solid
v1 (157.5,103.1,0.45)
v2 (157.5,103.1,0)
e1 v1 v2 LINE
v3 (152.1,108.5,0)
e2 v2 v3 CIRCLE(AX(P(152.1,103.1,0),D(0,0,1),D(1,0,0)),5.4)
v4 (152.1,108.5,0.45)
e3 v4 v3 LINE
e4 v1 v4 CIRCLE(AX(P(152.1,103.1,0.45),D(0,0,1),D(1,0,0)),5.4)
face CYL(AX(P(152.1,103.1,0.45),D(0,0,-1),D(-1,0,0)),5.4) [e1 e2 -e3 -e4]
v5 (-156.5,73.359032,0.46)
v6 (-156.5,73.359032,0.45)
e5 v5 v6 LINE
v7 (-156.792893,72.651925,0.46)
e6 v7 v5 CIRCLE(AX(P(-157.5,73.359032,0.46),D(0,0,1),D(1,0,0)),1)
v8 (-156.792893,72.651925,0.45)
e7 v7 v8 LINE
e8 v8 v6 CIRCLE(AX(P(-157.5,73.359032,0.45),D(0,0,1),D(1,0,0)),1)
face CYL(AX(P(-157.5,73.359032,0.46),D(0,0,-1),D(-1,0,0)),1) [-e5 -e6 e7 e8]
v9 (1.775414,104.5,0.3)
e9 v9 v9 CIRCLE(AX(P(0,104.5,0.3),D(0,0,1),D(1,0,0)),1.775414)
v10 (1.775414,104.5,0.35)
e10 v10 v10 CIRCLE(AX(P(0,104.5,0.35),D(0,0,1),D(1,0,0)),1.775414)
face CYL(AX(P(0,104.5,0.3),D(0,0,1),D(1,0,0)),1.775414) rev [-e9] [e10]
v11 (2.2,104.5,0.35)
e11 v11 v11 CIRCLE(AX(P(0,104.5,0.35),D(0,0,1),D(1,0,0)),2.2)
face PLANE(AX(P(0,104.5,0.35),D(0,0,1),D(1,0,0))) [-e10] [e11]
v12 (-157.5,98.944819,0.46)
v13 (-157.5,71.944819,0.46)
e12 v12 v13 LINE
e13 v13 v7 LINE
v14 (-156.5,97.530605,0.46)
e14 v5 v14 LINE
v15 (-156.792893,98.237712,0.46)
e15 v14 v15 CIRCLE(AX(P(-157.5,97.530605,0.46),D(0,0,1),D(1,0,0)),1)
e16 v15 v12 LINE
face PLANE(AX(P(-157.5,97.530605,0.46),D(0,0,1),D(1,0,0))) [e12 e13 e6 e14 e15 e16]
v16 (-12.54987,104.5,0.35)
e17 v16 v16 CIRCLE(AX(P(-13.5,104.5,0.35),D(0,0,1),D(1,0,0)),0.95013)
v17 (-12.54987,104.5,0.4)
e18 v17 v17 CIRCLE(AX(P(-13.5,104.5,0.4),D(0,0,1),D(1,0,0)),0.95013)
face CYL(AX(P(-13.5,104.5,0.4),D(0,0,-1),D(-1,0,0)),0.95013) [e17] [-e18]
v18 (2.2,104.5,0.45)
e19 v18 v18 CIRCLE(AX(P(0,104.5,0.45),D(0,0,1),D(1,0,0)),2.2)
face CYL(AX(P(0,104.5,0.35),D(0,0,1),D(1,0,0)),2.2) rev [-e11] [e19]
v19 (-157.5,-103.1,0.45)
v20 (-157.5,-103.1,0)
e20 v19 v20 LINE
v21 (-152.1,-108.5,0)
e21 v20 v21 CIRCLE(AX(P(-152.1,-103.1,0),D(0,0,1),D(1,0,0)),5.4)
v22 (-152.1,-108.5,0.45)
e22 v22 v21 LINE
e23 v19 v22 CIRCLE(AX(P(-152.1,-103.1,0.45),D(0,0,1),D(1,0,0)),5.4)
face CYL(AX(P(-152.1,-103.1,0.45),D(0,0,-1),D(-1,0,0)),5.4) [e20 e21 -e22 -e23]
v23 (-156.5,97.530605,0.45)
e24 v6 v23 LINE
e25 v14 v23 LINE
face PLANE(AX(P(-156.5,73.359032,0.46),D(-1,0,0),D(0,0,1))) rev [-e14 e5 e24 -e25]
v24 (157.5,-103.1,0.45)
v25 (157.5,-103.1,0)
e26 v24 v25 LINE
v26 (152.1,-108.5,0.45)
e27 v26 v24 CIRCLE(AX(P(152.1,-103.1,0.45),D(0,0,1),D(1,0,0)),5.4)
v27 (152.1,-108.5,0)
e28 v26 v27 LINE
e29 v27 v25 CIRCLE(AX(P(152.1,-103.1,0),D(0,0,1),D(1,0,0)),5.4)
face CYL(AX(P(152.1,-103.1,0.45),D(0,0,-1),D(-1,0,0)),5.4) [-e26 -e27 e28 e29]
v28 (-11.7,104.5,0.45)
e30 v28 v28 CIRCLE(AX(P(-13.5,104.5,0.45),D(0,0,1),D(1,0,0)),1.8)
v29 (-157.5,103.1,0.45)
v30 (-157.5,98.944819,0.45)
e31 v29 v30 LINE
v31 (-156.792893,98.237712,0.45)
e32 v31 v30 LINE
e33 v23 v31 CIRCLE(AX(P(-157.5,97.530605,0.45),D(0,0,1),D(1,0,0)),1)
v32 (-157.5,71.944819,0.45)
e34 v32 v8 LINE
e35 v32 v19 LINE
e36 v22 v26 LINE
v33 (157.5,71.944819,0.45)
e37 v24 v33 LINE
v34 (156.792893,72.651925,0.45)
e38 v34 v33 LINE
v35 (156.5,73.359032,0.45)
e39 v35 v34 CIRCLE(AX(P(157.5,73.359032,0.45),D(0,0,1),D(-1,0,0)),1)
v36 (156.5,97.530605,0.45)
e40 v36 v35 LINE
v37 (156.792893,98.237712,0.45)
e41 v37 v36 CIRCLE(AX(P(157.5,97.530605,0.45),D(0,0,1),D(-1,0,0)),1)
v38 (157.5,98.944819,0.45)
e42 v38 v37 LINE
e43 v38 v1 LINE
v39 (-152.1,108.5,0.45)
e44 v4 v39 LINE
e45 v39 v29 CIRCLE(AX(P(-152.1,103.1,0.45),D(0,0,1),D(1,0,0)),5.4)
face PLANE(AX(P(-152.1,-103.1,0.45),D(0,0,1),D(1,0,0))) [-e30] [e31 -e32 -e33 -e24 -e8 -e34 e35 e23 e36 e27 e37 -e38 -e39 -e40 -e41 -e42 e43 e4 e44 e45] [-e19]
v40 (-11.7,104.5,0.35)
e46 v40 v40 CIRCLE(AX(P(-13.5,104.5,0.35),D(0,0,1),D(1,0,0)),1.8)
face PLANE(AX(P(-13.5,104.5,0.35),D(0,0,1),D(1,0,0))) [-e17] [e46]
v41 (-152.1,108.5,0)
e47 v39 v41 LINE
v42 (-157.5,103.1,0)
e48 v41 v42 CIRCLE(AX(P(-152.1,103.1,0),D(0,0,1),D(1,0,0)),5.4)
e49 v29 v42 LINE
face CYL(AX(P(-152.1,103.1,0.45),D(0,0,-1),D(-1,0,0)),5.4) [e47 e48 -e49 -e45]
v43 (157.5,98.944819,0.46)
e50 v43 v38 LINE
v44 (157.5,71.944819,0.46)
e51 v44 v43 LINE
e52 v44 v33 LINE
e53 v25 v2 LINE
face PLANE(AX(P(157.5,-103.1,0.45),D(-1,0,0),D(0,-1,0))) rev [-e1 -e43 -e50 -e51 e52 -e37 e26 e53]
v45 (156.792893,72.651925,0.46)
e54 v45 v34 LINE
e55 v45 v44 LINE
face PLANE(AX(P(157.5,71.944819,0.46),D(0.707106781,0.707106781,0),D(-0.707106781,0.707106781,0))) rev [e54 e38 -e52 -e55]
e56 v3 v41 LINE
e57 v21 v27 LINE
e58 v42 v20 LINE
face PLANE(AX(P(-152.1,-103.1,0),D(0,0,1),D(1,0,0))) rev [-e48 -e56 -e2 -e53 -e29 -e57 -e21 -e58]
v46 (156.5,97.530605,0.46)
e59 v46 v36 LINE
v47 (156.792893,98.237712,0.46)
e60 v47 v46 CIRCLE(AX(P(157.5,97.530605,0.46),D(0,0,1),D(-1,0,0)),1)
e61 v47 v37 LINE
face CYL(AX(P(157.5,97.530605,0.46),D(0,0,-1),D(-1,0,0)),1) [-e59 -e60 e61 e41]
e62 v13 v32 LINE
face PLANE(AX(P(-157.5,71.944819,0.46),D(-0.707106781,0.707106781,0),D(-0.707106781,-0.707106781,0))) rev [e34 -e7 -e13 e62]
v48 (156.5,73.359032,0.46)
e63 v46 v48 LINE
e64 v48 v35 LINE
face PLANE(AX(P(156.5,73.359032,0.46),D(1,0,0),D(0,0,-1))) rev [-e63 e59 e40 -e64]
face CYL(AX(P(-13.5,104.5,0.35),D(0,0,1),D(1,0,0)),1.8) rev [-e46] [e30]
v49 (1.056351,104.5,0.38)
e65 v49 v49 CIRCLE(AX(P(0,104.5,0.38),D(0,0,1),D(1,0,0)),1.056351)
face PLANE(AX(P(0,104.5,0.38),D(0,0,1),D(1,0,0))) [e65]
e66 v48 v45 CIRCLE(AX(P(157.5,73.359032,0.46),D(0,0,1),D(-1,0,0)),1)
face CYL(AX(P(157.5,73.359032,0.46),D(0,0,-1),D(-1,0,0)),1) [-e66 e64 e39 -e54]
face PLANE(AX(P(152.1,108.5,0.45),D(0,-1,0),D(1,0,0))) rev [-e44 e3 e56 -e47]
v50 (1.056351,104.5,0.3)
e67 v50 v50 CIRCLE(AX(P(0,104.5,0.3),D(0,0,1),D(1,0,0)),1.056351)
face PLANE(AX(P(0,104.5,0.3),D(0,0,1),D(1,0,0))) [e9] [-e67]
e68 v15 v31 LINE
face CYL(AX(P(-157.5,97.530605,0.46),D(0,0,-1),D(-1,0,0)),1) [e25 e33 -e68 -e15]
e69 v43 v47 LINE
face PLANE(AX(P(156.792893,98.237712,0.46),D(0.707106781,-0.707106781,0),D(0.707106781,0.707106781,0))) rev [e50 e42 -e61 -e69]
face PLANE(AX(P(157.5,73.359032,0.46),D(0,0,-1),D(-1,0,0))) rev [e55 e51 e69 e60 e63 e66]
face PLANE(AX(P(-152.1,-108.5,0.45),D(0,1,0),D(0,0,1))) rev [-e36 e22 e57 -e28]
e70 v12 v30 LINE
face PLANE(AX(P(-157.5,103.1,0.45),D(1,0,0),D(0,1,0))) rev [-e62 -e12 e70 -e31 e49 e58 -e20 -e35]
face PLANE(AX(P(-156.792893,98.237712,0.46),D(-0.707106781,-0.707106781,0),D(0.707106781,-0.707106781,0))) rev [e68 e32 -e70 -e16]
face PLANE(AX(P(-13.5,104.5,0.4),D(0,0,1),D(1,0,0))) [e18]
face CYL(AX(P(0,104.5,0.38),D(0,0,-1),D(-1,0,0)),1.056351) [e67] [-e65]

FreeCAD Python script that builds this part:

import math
import FreeCAD as App
import Part
import Sketcher
Q = App.Units.Quantity

doc = App.newDocument("Part")
body = doc.addObject("PartDesign::Body", "Body")

sketch1 = body.newObject("Sketcher::SketchObject", "Sketch")
sketch1.AttachmentSupport = (doc.getObject("XY_Plane"), [""])
sketch1.MapMode = "FlatFace"
sketch1.addGeometry([
    Part.LineSegment(App.Vector(-152, -108, 0), App.Vector(152, -108, 0)),
    Part.ArcOfCircle(Part.Circle(App.Vector(152, -103, 0), App.Vector(0, 0, 1), 5), math.radians(-90), math.radians(0)),
    Part.LineSegment(App.Vector(158, -103, 0), App.Vector(158, 103, 0)),
    Part.ArcOfCircle(Part.Circle(App.Vector(152, 103, 0), App.Vector(0, 0, 1), 5), math.radians(0), math.radians(90)),
    Part.LineSegment(App.Vector(152, 108, 0), App.Vector(-152, 108, 0)),
    Part.ArcOfCircle(Part.Circle(App.Vector(-152, 103, 0), App.Vector(0, 0, 1), 5), math.radians(90), math.radians(180)),
    Part.LineSegment(App.Vector(-158, 103, 0), App.Vector(-158, -103, 0)),
    Part.ArcOfCircle(Part.Circle(App.Vector(-152, -103, 0), App.Vector(0, 0, 1), 5), math.radians(-180), math.radians(-90)),
], False)
sketch1.addConstraint([
    Sketcher.Constraint("Tangent", 0, 2, 1, 1),
    Sketcher.Constraint("Tangent", 1, 2, 2, 1),
    Sketcher.Constraint("Tangent", 2, 2, 3, 1),
    Sketcher.Constraint("Tangent", 3, 2, 4, 1),
    Sketcher.Constraint("Tangent", 4, 2, 5, 1),
    Sketcher.Constraint("Tangent", 5, 2, 6, 1),
    Sketcher.Constraint("Tangent", 6, 2, 7, 1),
    Sketcher.Constraint("Tangent", 7, 2, 0, 1),
    Sketcher.Constraint("Horizontal", 0),
    Sketcher.Constraint("Vertical", 2),
    Sketcher.Constraint("Horizontal", 4),
    Sketcher.Constraint("Vertical", 6),
    Sketcher.Constraint("Equal", 1, 3),
    Sketcher.Constraint("Equal", 3, 5),
    Sketcher.Constraint("Equal", 5, 7),
    Sketcher.Constraint("Symmetric", 1, 3, 5, 3, -1, 1),
    Sketcher.Constraint("Radius", 1, Q("5.4 mm")),
    Sketcher.Constraint("DistanceX", 0, 1, 0, 2, Q("304.2 mm")),
    Sketcher.Constraint("DistanceY", 2, 1, 2, 2, Q("206.2 mm")),
])
pad1 = body.newObject("PartDesign::Pad", "Pad")
pad1.Profile = sketch1
pad1.Length = 0.45

sketch2 = body.newObject("Sketcher::SketchObject", "Sketch001")
sketch2.AttachmentSupport = (doc.getObject("XY_Plane"), [""])
sketch2.MapMode = "FlatFace"
sketch2.AttachmentOffset = App.Placement(App.Vector(0, 0, 0.45), App.Rotation())
sketch2.addGeometry([
    Part.Circle(App.Vector(0, 104.5, 0), App.Vector(0, 0, 1), 2.2),
    Part.Circle(App.Vector(-13.5, 104.5, 0), App.Vector(0, 0, 1), 1.8),
], False)
sketch2.addConstraint([
    Sketcher.Constraint("PointOnObject", 0, 3, -2),
    Sketcher.Constraint("Horizontal", 0, 3, 1, 3),
    Sketcher.Constraint("Diameter", 0, Q("4.4 mm")),
    Sketcher.Constraint("Diameter", 1, Q("3.6 mm")),
    Sketcher.Constraint("DistanceY", -1, 1, 0, 3, Q("104.5 mm")),
    Sketcher.Constraint("DistanceX", 1, 3, -1, 1, Q("13.5 mm")),
])
pocket1 = body.newObject("PartDesign::Pocket", "Pocket")
pocket1.Profile = sketch2
pocket1.Length = 0.1

sketch3 = body.newObject("Sketcher::SketchObject", "Sketch002")
sketch3.AttachmentSupport = (doc.getObject("XY_Plane"), [""])
sketch3.MapMode = "FlatFace"
sketch3.AttachmentOffset = App.Placement(App.Vector(0, 0, 0.35), App.Rotation())
sketch3.addGeometry(Part.Circle(App.Vector(-13.5, 104.5, 0), App.Vector(0, 0, 1), 1), False)
sketch3.addConstraint([
    Sketcher.Constraint("DistanceX", 0, 3, -1, 1, Q("13.5 mm")),
    Sketcher.Constraint("DistanceY", -1, 1, 0, 3, Q("104.5 mm")),
    Sketcher.Constraint("Diameter", 0, Q("1.900261 mm")),
])
pad2 = body.newObject("PartDesign::Pad", "Pad001")
pad2.Profile = sketch3
pad2.Length = 0.05

sketch4 = body.newObject("Sketcher::SketchObject", "Sketch003")
sketch4.AttachmentSupport = (doc.getObject("XY_Plane"), [""])
sketch4.MapMode = "FlatFace"
sketch4.AttachmentOffset = App.Placement(App.Vector(0, 0, 0.35), App.Rotation())
sketch4.addGeometry(Part.Circle(App.Vector(0, 104.5, 0), App.Vector(0, 0, 1), 1.8), False)
sketch4.addConstraint([
    Sketcher.Constraint("PointOnObject", 0, 3, -2),
    Sketcher.Constraint("DistanceY", -1, 1, 0, 3, Q("104.5 mm")),
    Sketcher.Constraint("Diameter", 0, Q("3.550828 mm")),
])
pocket2 = body.newObject("PartDesign::Pocket", "Pocket001")
pocket2.Profile = sketch4
pocket2.Length = 0.05

sketch5 = body.newObject("Sketcher::SketchObject", "Sketch004")
sketch5.AttachmentSupport = (doc.getObject("XY_Plane"), [""])
sketch5.MapMode = "FlatFace"
sketch5.AttachmentOffset = App.Placement(App.Vector(0, 0, 0.3), App.Rotation())
sketch5.addGeometry(Part.Circle(App.Vector(0, 104.5, 0), App.Vector(0, 0, 1), 1.1), False)
sketch5.addConstraint([
    Sketcher.Constraint("PointOnObject", 0, 3, -2),
    Sketcher.Constraint("Diameter", 0, Q("2.112701 mm")),
    Sketcher.Constraint("DistanceY", -1, 1, 0, 3, Q("104.5 mm")),
])
pad3 = body.newObject("PartDesign::Pad", "Pad002")
pad3.Profile = sketch5
pad3.Length = 0.08

sketch6 = body.newObject("Sketcher::SketchObject", "Sketch005")
sketch6.AttachmentSupport = (doc.getObject("XY_Plane"), [""])
sketch6.MapMode = "FlatFace"
sketch6.AttachmentOffset = App.Placement(App.Vector(0, 0, 0.45), App.Rotation())
sketch6.addGeometry([
    Part.LineSegment(App.Vector(156.8, 72.7, 0), App.Vector(157.5, 71.9, 0)),
    Part.LineSegment(App.Vector(157.5, 71.9, 0), App.Vector(157.5, 98.9, 0)),
    Part.LineSegment(App.Vector(157.5, 98.9, 0), App.Vector(156.8, 98.2, 0)),
    Part.ArcOfCircle(Part.Circle(App.Vector(157.5, 97.5, 0), App.Vector(0, 0, 1), 1), math.radians(135), math.radians(180)),
    Part.LineSegment(App.Vector(156.5, 97.5, 0), App.Vector(156.5, 73.4, 0)),
    Part.ArcOfCircle(Part.Circle(App.Vector(157.5, 73.4, 0), App.Vector(0, 0, 1), 1), math.radians(180), math.radians(225)),
    Part.LineSegment(App.Vector(-157.5, 98.9, 0), App.Vector(-157.5, 71.9, 0)),
    Part.LineSegment(App.Vector(-157.5, 71.9, 0), App.Vector(-156.8, 72.7, 0)),
    Part.ArcOfCircle(Part.Circle(App.Vector(-157.5, 73.4, 0), App.Vector(0, 0, 1), 1), math.radians(-45), math.radians(0)),
    Part.LineSegment(App.Vector(-156.5, 73.4, 0), App.Vector(-156.5, 97.5, 0)),
    Part.ArcOfCircle(Part.Circle(App.Vector(-157.5, 97.5, 0), App.Vector(0, 0, 1), 1), math.radians(0), math.radians(45)),
    Part.LineSegment(App.Vector(-156.8, 98.2, 0), App.Vector(-157.5, 98.9, 0)),
], False)
sketch6.addConstraint([
    Sketcher.Constraint("Coincident", 0, 2, 1, 1),
    Sketcher.Constraint("Coincident", 1, 2, 2, 1),
    Sketcher.Constraint("Tangent", 2, 2, 3, 1),
    Sketcher.Constraint("Tangent", 3, 2, 4, 1),
    Sketcher.Constraint("Tangent", 4, 2, 5, 1),
    Sketcher.Constraint("Tangent", 5, 2, 0, 1),
    Sketcher.Constraint("Coincident", 6, 2, 7, 1),
    Sketcher.Constraint("Tangent", 7, 2, 8, 1),
    Sketcher.Constraint("Tangent", 8, 2, 9, 1),
    Sketcher.Constraint("Tangent", 9, 2, 10, 1),
    Sketcher.Constraint("Tangent", 10, 2, 11, 1),
    Sketcher.Constraint("Coincident", 11, 2, 6, 1),
    Sketcher.Constraint("Vertical", 1),
    Sketcher.Constraint("Vertical", 4),
    Sketcher.Constraint("Vertical", 6),
    Sketcher.Constraint("Vertical", 9),
    Sketcher.Constraint("Equal", 3, 5),
    Sketcher.Constraint("Equal", 5, 8),
    Sketcher.Constraint("Equal", 8, 10),
    Sketcher.Constraint("Symmetric", 5, 3, 8, 3, -2),
    Sketcher.Constraint("Symmetric", 0, 2, 6, 2, -2),
    Sketcher.Constraint("Symmetric", 2, 2, 10, 2, -2),
    Sketcher.Constraint("Perpendicular", 0, 2),
    Sketcher.Constraint("Parallel", 2, 7),
    Sketcher.Constraint("Vertical", 5, 3, 0, 2),
    Sketcher.Constraint("Radius", 3, Q("1 mm")),
    Sketcher.Constraint("DistanceY", 1, 1, 1, 2, Q("27 mm")),
    Sketcher.Constraint("DistanceX", 8, 3, 5, 3, Q("315 mm")),
    Sketcher.Constraint("DistanceY", -1, 1, 0, 2, Q("71.944819 mm")),
])
pad4 = body.newObject("PartDesign::Pad", "Pad003")
pad4.Profile = sketch6
pad4.Length = 0.01

doc.recompute()
